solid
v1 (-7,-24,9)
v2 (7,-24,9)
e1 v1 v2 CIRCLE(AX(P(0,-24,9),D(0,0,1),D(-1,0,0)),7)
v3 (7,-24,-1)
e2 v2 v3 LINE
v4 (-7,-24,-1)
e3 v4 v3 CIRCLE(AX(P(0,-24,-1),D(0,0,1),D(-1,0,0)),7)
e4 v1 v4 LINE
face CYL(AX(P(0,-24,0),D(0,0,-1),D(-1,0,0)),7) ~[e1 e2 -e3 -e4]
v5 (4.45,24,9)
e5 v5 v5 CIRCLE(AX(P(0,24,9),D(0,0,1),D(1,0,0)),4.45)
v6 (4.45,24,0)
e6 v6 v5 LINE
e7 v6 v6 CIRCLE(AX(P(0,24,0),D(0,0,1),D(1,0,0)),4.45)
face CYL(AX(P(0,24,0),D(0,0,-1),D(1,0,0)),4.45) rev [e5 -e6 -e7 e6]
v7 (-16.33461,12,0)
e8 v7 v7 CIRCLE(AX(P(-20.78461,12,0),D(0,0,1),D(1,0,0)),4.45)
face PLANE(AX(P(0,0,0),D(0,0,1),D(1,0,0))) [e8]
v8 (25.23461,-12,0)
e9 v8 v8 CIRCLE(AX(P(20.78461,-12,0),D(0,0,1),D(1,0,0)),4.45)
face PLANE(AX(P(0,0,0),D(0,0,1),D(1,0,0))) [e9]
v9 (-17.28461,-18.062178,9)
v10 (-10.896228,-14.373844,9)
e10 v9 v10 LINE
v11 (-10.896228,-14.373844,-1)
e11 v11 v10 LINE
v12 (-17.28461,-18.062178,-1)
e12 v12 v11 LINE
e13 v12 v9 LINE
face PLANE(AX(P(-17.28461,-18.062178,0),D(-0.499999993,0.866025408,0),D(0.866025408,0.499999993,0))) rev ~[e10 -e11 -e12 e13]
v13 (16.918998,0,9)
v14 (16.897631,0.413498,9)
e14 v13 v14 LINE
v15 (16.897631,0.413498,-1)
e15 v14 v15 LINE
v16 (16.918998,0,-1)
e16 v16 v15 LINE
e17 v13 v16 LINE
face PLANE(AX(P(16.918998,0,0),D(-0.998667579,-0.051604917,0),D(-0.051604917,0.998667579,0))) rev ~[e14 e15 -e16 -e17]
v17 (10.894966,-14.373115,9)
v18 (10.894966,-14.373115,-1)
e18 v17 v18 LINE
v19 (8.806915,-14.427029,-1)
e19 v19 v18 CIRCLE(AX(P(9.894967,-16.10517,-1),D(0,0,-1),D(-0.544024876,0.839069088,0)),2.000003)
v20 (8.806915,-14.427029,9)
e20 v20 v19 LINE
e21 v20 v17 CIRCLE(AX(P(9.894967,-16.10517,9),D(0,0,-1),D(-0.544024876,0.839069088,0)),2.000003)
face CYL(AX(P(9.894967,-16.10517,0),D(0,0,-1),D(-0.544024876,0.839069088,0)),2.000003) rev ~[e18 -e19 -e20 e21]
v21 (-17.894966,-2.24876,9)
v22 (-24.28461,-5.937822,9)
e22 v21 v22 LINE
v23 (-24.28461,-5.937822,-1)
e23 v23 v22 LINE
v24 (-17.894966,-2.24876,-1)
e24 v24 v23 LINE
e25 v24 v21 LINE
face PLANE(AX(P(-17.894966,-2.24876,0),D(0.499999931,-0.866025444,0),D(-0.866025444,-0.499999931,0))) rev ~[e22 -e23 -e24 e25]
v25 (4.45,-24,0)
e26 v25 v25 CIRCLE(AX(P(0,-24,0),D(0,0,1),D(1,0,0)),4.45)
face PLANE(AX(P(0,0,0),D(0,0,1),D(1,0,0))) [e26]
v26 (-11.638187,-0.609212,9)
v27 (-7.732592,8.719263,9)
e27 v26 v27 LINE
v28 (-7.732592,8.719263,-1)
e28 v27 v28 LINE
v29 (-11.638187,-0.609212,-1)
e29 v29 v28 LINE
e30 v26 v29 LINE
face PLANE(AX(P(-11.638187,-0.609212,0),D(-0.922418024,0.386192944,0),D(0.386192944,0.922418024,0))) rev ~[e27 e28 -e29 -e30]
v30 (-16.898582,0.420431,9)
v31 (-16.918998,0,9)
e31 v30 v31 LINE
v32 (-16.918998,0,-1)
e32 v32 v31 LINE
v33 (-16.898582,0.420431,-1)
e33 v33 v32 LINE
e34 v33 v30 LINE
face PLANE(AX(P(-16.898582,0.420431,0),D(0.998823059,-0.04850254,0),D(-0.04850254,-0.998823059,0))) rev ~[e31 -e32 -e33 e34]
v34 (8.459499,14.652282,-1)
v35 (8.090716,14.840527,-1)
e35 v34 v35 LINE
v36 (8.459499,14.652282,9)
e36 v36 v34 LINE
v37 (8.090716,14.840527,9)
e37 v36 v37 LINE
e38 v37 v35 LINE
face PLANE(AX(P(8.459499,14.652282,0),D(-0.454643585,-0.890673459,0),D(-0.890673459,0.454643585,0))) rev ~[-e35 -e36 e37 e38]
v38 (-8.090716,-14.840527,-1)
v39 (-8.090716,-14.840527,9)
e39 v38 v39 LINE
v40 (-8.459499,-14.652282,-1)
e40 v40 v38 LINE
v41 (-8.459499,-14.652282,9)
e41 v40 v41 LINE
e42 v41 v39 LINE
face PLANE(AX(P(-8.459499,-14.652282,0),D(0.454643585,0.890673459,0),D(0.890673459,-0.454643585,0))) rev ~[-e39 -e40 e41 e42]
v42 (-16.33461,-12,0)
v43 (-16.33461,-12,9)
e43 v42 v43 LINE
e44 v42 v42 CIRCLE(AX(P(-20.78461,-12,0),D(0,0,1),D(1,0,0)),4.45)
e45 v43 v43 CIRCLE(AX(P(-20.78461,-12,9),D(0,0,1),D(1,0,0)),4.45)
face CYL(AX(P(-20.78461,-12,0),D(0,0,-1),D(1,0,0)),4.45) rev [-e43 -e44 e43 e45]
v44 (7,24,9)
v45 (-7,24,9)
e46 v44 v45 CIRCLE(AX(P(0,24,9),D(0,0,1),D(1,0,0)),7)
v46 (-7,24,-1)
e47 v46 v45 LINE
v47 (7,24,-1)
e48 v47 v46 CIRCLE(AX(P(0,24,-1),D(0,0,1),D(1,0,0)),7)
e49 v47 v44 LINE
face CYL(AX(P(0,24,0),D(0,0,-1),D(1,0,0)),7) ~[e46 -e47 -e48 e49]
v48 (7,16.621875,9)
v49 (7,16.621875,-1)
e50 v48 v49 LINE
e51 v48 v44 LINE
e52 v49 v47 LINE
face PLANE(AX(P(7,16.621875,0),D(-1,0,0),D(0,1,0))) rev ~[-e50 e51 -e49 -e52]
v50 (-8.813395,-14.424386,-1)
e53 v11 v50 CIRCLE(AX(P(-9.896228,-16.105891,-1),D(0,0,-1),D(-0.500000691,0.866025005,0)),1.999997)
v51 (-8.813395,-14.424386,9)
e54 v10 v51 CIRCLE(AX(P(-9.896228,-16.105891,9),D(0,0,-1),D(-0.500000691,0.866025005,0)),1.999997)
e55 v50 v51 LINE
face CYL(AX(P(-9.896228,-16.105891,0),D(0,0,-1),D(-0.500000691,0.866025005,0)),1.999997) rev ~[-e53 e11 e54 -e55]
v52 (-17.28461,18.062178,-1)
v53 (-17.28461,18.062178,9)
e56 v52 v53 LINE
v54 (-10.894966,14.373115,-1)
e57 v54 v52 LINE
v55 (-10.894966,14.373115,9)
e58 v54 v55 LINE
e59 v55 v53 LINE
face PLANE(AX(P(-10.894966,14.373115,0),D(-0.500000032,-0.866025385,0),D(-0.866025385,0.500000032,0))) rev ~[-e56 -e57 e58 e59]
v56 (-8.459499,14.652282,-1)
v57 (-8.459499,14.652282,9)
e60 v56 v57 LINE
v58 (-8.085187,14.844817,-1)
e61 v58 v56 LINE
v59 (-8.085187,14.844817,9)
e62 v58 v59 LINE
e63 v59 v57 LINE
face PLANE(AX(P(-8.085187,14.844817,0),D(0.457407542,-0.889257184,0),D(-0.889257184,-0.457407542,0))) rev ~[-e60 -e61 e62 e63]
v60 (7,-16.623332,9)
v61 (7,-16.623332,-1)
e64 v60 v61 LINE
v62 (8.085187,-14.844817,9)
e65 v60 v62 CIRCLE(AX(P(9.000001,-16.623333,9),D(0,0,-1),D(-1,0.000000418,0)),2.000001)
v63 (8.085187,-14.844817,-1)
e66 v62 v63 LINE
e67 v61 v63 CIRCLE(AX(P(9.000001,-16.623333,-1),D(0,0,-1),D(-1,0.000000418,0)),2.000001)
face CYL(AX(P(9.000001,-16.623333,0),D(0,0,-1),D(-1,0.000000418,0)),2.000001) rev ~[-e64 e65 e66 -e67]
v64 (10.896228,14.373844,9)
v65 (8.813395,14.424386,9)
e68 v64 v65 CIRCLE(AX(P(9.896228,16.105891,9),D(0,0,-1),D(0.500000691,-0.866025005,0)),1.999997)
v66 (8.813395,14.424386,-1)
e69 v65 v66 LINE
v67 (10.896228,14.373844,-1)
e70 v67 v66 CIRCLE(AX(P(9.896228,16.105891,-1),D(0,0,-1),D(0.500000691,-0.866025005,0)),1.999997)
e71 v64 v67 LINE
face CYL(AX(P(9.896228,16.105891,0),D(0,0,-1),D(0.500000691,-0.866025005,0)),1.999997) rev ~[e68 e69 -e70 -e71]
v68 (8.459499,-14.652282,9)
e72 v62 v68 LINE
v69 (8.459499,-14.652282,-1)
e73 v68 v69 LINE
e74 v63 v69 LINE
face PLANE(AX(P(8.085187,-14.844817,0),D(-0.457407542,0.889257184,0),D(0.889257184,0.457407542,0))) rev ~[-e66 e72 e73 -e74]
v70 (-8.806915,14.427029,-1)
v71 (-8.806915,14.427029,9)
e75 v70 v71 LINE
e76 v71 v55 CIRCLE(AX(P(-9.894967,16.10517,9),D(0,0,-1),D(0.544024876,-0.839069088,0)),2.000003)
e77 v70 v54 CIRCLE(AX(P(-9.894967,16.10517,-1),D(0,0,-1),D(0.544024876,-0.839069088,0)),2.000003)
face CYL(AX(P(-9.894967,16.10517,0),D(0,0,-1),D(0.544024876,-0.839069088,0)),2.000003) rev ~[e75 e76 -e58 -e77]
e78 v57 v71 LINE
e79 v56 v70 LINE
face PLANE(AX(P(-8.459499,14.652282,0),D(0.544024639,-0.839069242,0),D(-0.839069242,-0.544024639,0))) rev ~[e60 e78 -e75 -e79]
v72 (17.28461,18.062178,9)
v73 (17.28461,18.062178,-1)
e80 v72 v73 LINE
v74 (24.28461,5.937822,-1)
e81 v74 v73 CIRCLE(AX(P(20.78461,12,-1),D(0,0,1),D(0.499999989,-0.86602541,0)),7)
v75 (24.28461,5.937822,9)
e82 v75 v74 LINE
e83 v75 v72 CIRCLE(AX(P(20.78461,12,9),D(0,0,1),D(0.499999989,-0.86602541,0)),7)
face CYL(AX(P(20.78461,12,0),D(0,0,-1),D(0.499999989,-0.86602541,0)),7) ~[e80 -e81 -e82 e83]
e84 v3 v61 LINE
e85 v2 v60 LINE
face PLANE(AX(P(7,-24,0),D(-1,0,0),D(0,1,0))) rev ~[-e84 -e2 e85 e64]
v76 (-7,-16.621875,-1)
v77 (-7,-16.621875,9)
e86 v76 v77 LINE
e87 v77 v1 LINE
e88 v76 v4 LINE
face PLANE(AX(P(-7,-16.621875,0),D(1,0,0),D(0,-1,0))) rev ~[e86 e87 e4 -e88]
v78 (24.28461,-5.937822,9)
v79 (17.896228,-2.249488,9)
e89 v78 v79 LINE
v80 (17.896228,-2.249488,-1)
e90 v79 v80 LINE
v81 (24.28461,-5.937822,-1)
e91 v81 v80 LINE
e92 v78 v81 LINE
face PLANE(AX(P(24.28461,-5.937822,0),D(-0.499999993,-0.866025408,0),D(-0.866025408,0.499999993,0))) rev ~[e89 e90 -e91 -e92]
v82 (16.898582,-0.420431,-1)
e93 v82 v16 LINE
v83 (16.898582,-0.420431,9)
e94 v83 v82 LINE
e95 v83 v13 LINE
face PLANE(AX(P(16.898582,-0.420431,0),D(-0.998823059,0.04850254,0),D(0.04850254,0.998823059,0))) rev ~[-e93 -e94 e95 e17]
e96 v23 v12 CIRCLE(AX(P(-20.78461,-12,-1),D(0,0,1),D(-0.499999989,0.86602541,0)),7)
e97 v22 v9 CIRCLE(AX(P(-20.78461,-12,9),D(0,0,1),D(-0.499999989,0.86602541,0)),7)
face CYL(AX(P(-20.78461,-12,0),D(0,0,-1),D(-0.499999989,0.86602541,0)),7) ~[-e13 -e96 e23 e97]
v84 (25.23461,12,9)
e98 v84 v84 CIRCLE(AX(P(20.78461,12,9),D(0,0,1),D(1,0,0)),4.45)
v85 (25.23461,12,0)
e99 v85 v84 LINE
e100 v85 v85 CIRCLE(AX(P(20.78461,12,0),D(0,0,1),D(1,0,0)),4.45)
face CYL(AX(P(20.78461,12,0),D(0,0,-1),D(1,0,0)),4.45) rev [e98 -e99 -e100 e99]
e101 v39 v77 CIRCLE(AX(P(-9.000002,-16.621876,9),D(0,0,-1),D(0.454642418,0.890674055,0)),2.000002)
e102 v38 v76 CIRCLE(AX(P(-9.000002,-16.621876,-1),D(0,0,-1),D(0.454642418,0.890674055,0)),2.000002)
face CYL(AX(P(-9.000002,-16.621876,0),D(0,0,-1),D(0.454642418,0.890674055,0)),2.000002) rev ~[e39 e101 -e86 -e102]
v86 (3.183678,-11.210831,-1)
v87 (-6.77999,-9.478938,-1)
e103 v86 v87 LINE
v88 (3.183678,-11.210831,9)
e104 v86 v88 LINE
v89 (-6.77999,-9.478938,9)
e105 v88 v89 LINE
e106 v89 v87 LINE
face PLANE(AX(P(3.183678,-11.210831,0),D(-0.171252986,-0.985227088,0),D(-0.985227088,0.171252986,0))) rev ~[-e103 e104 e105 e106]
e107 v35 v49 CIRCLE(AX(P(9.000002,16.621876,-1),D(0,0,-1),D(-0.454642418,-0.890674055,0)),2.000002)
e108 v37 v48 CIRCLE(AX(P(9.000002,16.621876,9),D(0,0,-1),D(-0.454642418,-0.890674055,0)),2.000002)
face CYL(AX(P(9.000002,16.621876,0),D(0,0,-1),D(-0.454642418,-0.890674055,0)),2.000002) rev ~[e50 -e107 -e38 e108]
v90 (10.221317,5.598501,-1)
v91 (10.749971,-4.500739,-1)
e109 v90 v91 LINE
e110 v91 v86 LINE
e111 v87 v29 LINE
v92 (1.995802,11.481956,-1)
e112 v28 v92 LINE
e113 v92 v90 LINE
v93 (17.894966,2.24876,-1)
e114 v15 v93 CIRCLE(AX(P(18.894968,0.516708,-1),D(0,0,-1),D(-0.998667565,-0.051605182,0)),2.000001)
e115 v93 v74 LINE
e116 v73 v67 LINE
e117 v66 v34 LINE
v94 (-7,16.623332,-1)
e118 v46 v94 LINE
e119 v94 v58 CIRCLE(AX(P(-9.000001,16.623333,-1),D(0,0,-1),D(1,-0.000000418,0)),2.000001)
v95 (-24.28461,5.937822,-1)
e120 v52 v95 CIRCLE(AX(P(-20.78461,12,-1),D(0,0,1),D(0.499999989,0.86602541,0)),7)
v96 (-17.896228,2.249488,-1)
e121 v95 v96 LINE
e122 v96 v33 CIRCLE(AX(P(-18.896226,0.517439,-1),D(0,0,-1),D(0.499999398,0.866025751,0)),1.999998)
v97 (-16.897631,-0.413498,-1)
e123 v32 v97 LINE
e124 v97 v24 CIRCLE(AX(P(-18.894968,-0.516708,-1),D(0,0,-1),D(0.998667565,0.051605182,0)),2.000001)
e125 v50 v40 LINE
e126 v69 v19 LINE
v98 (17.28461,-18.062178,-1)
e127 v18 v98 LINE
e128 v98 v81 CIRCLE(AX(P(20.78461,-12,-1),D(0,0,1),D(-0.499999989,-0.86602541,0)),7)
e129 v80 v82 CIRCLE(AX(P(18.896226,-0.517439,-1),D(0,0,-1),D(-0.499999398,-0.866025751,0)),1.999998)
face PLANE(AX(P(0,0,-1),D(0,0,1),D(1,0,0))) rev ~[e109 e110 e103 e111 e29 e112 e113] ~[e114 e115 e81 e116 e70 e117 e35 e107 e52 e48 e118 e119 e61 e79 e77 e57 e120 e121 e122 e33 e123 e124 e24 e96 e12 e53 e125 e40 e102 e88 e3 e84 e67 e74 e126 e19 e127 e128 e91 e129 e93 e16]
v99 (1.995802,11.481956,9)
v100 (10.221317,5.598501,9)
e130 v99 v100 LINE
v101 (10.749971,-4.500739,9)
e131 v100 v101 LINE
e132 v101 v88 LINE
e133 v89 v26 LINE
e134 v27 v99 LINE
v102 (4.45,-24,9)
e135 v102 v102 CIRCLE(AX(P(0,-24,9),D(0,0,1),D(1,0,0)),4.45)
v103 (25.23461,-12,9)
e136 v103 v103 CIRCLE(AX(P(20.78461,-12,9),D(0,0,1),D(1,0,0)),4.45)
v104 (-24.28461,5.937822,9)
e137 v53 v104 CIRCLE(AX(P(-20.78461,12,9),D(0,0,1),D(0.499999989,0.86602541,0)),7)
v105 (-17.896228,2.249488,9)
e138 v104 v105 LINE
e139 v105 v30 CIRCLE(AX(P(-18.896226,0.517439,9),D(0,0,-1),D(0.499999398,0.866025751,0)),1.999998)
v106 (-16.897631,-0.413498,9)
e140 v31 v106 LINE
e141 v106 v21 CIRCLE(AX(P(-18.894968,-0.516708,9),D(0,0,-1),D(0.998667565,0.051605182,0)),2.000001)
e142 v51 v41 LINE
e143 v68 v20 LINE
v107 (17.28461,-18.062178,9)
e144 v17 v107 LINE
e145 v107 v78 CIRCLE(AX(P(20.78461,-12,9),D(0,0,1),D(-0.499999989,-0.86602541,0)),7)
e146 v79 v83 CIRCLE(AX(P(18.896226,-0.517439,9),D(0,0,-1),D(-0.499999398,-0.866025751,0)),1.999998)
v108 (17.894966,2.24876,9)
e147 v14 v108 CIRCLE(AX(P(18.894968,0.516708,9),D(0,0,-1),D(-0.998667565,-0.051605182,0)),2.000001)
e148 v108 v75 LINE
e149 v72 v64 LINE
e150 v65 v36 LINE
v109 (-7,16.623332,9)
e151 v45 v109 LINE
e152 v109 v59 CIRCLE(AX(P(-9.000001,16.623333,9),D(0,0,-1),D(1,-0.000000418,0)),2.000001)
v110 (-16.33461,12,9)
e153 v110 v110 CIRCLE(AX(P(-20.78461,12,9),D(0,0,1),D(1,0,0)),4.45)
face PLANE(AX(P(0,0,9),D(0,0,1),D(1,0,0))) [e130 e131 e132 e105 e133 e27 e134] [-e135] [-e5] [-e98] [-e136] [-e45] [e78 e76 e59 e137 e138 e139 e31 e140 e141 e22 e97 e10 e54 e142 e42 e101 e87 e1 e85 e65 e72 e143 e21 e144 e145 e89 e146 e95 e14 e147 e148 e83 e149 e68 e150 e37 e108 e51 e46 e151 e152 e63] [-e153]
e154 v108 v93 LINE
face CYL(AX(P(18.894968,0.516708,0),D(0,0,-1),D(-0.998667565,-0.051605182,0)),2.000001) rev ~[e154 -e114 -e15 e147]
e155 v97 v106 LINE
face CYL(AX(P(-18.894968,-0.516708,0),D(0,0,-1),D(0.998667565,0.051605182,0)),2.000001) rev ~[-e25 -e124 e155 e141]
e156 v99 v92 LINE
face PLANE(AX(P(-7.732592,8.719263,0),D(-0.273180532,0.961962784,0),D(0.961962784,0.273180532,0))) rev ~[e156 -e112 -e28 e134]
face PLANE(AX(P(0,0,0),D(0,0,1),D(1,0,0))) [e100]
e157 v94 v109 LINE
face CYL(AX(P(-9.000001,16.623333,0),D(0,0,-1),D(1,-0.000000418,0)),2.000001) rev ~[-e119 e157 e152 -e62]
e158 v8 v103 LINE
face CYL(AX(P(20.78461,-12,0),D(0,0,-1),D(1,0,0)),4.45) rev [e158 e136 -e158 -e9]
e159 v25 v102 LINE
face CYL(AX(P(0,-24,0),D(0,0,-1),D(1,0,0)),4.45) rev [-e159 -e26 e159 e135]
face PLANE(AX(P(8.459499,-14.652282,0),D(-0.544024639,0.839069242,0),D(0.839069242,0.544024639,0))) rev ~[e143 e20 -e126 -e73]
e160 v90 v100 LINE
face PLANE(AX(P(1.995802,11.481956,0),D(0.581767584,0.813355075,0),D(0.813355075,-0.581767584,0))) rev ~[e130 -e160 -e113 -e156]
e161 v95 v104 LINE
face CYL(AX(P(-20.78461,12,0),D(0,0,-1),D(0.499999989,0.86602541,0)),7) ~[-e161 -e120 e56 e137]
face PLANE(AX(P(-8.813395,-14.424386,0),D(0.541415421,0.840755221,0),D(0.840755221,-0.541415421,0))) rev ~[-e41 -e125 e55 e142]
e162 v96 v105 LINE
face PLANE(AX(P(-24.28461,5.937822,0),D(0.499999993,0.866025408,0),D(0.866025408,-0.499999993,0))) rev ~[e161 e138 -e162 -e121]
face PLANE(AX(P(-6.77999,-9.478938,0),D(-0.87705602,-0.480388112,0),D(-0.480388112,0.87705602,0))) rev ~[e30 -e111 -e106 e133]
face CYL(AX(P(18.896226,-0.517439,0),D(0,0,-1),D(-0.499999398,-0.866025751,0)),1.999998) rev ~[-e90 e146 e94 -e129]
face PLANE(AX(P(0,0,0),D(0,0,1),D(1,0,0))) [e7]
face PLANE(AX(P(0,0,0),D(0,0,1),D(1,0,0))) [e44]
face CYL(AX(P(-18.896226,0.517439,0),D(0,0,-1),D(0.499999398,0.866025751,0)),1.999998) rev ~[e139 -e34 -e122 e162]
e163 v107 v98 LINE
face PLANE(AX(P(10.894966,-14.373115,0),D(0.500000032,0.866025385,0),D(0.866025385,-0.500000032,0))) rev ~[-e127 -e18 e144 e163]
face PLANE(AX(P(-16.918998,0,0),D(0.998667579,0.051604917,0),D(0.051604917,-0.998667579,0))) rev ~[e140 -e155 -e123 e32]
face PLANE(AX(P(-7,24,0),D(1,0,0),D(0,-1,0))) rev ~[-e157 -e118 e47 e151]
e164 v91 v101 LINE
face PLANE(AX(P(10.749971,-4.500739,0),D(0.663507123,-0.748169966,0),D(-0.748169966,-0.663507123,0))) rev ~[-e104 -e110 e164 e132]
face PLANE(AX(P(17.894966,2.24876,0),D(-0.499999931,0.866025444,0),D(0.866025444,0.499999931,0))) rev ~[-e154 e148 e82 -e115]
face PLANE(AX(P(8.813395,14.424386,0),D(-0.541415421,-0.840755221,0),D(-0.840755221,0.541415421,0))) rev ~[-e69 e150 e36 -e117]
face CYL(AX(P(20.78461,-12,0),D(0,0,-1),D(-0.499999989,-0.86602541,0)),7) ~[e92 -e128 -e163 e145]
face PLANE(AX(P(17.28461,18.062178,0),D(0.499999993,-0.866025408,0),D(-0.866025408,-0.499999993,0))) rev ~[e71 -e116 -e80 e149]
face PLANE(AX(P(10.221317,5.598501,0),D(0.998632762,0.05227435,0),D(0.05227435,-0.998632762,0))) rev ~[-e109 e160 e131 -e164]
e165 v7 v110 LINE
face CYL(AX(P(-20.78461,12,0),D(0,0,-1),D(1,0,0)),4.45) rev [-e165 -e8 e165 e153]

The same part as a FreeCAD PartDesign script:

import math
import FreeCAD as App
import Part
import Sketcher
from FreeCAD import Vector
Q = App.Units.Quantity

doc = App.newDocument("Part")
body = doc.addObject("PartDesign::Body", "Body")

sketch1 = body.newObject("Sketcher::SketchObject", "Sketch")
sketch1.AttachmentSupport = (doc.getObject("XY_Plane"), [""])
sketch1.MapMode = "FlatFace"
sketch1.addGeometry([
    Part.LineSegment(Vector(7, 16.62, 0), Vector(7, 24, 0)),
    Part.ArcOfCircle(Part.Circle(Vector(0, 24, 0), Vector(0, 0, 1), 7), math.radians(0), math.radians(180)),
    Part.LineSegment(Vector(-7, 24, 0), Vector(-7, 16.62, 0)),
    Part.ArcOfCircle(Part.Circle(Vector(-9, 16.62, 0), Vector(0, 0, 1), 2), math.radians(-63), math.radians(0)),
    Part.LineSegment(Vector(-8.09, 14.84, 0), Vector(-8.46, 14.65, 0)),
    Part.LineSegment(Vector(-8.46, 14.65, 0), Vector(-8.81, 14.43, 0)),
    Part.ArcOfCircle(Part.Circle(Vector(-9.89, 16.11, 0), Vector(0, 0, 1), 2), math.radians(-120), math.radians(-57)),
    Part.LineSegment(Vector(-10.89, 14.37, 0), Vector(-17.28, 18.06, 0)),
    Part.ArcOfCircle(Part.Circle(Vector(-20.78, 12, 0), Vector(0, 0, 1), 7), math.radians(60), math.radians(240)),
    Part.LineSegment(Vector(-24.28, 5.94, 0), Vector(-17.9, 2.25, 0)),
    Part.ArcOfCircle(Part.Circle(Vector(-18.9, 0.52, 0), Vector(0, 0, 1), 2), math.radians(-3), math.radians(60)),
    Part.LineSegment(Vector(-16.9, 0.42, 0), Vector(-16.92, 0, 0)),
    Part.LineSegment(Vector(-16.92, 0, 0), Vector(-16.9, -0.41, 0)),
    Part.ArcOfCircle(Part.Circle(Vector(-18.89, -0.52, 0), Vector(0, 0, 1), 2), math.radians(-60), math.radians(3)),
    Part.LineSegment(Vector(-17.89, -2.25, 0), Vector(-24.28, -5.94, 0)),
    Part.ArcOfCircle(Part.Circle(Vector(-20.78, -12, 0), Vector(0, 0, 1), 7), math.radians(120), math.radians(300)),
    Part.LineSegment(Vector(-17.28, -18.06, 0), Vector(-10.9, -14.37, 0)),
    Part.ArcOfCircle(Part.Circle(Vector(-9.9, -16.11, 0), Vector(0, 0, 1), 2), math.radians(57), math.radians(120)),
    Part.LineSegment(Vector(-8.81, -14.42, 0), Vector(-8.46, -14.65, 0)),
    Part.LineSegment(Vector(-8.46, -14.65, 0), Vector(-8.09, -14.84, 0)),
    Part.ArcOfCircle(Part.Circle(Vector(-9, -16.62, 0), Vector(0, 0, 1), 2), math.radians(0), math.radians(63)),
    Part.LineSegment(Vector(-7, -16.62, 0), Vector(-7, -24, 0)),
    Part.ArcOfCircle(Part.Circle(Vector(0, -24, 0), Vector(0, 0, 1), 7), math.radians(180), math.radians(360)),
    Part.LineSegment(Vector(7, -24, 0), Vector(7, -16.62, 0)),
    Part.ArcOfCircle(Part.Circle(Vector(9, -16.62, 0), Vector(0, 0, 1), 2), math.radians(117), math.radians(180)),
    Part.LineSegment(Vector(8.09, -14.84, 0), Vector(8.46, -14.65, 0)),
    Part.LineSegment(Vector(8.46, -14.65, 0), Vector(8.81, -14.43, 0)),
    Part.ArcOfCircle(Part.Circle(Vector(9.89, -16.11, 0), Vector(0, 0, 1), 2), math.radians(60), math.radians(123)),
    Part.LineSegment(Vector(10.89, -14.37, 0), Vector(17.28, -18.06, 0)),
    Part.ArcOfCircle(Part.Circle(Vector(20.78, -12, 0), Vector(0, 0, 1), 7), math.radians(-120), math.radians(60)),
    Part.LineSegment(Vector(24.28, -5.94, 0), Vector(17.9, -2.25, 0)),
    Part.ArcOfCircle(Part.Circle(Vector(18.9, -0.52, 0), Vector(0, 0, 1), 2), math.radians(177), math.radians(240)),
    Part.LineSegment(Vector(16.9, -0.42, 0), Vector(16.92, 0, 0)),
    Part.LineSegment(Vector(16.92, 0, 0), Vector(16.9, 0.41, 0)),
    Part.ArcOfCircle(Part.Circle(Vector(18.89, 0.52, 0), Vector(0, 0, 1), 2), math.radians(120), math.radians(183)),
    Part.LineSegment(Vector(17.89, 2.25, 0), Vector(24.28, 5.94, 0)),
    Part.ArcOfCircle(Part.Circle(Vector(20.78, 12, 0), Vector(0, 0, 1), 7), math.radians(-60), math.radians(120)),
    Part.LineSegment(Vector(17.28, 18.06, 0), Vector(10.9, 14.37, 0)),
    Part.ArcOfCircle(Part.Circle(Vector(9.9, 16.11, 0), Vector(0, 0, 1), 2), math.radians(-123), math.radians(-60)),
    Part.LineSegment(Vector(8.81, 14.42, 0), Vector(8.46, 14.65, 0)),
    Part.LineSegment(Vector(8.46, 14.65, 0), Vector(8.09, 14.84, 0)),
    Part.ArcOfCircle(Part.Circle(Vector(9, 16.62, 0), Vector(0, 0, 1), 2), math.radians(-180), math.radians(-117)),
    Part.LineSegment(Vector(2, 11.48, 0), Vector(10.22, 5.6, 0)),
    Part.LineSegment(Vector(10.22, 5.6, 0), Vector(10.75, -4.5, 0)),
    Part.LineSegment(Vector(10.75, -4.5, 0), Vector(3.18, -11.21, 0)),
    Part.LineSegment(Vector(3.18, -11.21, 0), Vector(-6.78, -9.48, 0)),
    Part.LineSegment(Vector(-6.78, -9.48, 0), Vector(-11.64, -0.61, 0)),
    Part.LineSegment(Vector(-11.64, -0.61, 0), Vector(-7.73, 8.72, 0)),
    Part.LineSegment(Vector(-7.73, 8.72, 0), Vector(2, 11.48, 0)),
], False)
sketch1.addConstraint([
    Sketcher.Constraint("Tangent", 0, 2, 1, 1),
    Sketcher.Constraint("Tangent", 1, 2, 2, 1),
    Sketcher.Constraint("Tangent", 2, 2, 3, 2),
    Sketcher.Constraint("Tangent", 3, 1, 4, 1),
    Sketcher.Constraint("Coincident", 4, 2, 5, 1),
    Sketcher.Constraint("Tangent", 5, 2, 6, 2),
    Sketcher.Constraint("Tangent", 6, 1, 7, 1),
    Sketcher.Constraint("Tangent", 7, 2, 8, 1),
    Sketcher.Constraint("Tangent", 8, 2, 9, 1),
    Sketcher.Constraint("Tangent", 9, 2, 10, 2),
    Sketcher.Constraint("Tangent", 10, 1, 11, 1),
    Sketcher.Constraint("Coincident", 11, 2, 12, 1),
    Sketcher.Constraint("Tangent", 12, 2, 13, 2),
    Sketcher.Constraint("Tangent", 13, 1, 14, 1),
    Sketcher.Constraint("Tangent", 14, 2, 15, 1),
    Sketcher.Constraint("Tangent", 15, 2, 16, 1),
    Sketcher.Constraint("Tangent", 16, 2, 17, 2),
    Sketcher.Constraint("Coincident", 17, 1, 18, 1),
    Sketcher.Constraint("Coincident", 18, 2, 19, 1),
    Sketcher.Constraint("Tangent", 19, 2, 20, 2),
    Sketcher.Constraint("Tangent", 20, 1, 21, 1),
    Sketcher.Constraint("Tangent", 21, 2, 22, 1),
    Sketcher.Constraint("Tangent", 22, 2, 23, 1),
    Sketcher.Constraint("Tangent", 23, 2, 24, 2),
    Sketcher.Constraint("Tangent", 24, 1, 25, 1),
    Sketcher.Constraint("Coincident", 25, 2, 26, 1),
    Sketcher.Constraint("Tangent", 26, 2, 27, 2),
    Sketcher.Constraint("Tangent", 27, 1, 28, 1),
    Sketcher.Constraint("Tangent", 28, 2, 29, 1),
    Sketcher.Constraint("Tangent", 29, 2, 30, 1),
    Sketcher.Constraint("Tangent", 30, 2, 31, 2),
    Sketcher.Constraint("Tangent", 31, 1, 32, 1),
    Sketcher.Constraint("Coincident", 32, 2, 33, 1),
    Sketcher.Constraint("Tangent", 33, 2, 34, 2),
    Sketcher.Constraint("Tangent", 34, 1, 35, 1),
    Sketcher.Constraint("Tangent", 35, 2, 36, 1),
    Sketcher.Constraint("Tangent", 36, 2, 37, 1),
    Sketcher.Constraint("Tangent", 37, 2, 38, 2),
    Sketcher.Constraint("Coincident", 38, 1, 39, 1),
    Sketcher.Constraint("Coincident", 39, 2, 40, 1),
    Sketcher.Constraint("Tangent", 40, 2, 41, 2),
    Sketcher.Constraint("Tangent", 41, 1, 0, 1),
    Sketcher.Constraint("Coincident", 42, 2, 43, 1),
    Sketcher.Constraint("Coincident", 43, 2, 44, 1),
    Sketcher.Constraint("Coincident", 44, 2, 45, 1),
    Sketcher.Constraint("Coincident", 45, 2, 46, 1),
    Sketcher.Constraint("Coincident", 46, 2, 47, 1),
    Sketcher.Constraint("Coincident", 47, 2, 48, 1),
    Sketcher.Constraint("Coincident", 48, 2, 42, 1),
    Sketcher.Constraint("Vertical", 0),
    Sketcher.Constraint("Vertical", 2),
    Sketcher.Constraint("Vertical", 21),
    Sketcher.Constraint("Vertical", 23),
    Sketcher.Constraint("Equal", 1, 8),
    Sketcher.Constraint("Equal", 6, 13),
    Sketcher.Constraint("Equal", 8, 15),
    Sketcher.Constraint("Equal", 10, 17),
    Sketcher.Constraint("Equal", 13, 20),
    Sketcher.Constraint("Equal", 15, 22),
    Sketcher.Constraint("Equal", 20, 24),
    Sketcher.Constraint("Equal", 20, 27),
    Sketcher.Constraint("Equal", 22, 29),
    Sketcher.Constraint("Equal", 17, 31),
    Sketcher.Constraint("Equal", 27, 34),
    Sketcher.Constraint("Equal", 29, 36),
    Sketcher.Constraint("Equal", 31, 38),
    Sketcher.Constraint("Equal", 34, 41),
    Sketcher.Constraint("Symmetric", 1, 3, 22, 3, -1, 1),
    Sketcher.Constraint("Symmetric", 3, 3, 24, 3, -1, 1),
    Sketcher.Constraint("Symmetric", 6, 3, 27, 3, -1, 1),
    Sketcher.Constraint("Symmetric", 8, 3, 29, 3, -1, 1),
    Sketcher.Constraint("Symmetric", 10, 3, 31, 3, -1, 1),
    Sketcher.Constraint("Symmetric", 13, 3, 34, 3, -1, 1),
    Sketcher.Constraint("Symmetric", 15, 3, 36, 3, -1, 1),
    Sketcher.Constraint("Symmetric", 17, 3, 38, 3, -1, 1),
    Sketcher.Constraint("Symmetric", 4, 2, 25, 2, -1, 1),
    Sketcher.Constraint("Symmetric", 11, 2, 32, 2, -1, 1),
    Sketcher.Constraint("Symmetric", 18, 2, 39, 2, -1, 1),
    Sketcher.Constraint("Symmetric", 15, 3, 29, 3, -2),
    Sketcher.Constraint("Symmetric", 18, 2, 25, 2, -2),
    Sketcher.Constraint("PointOnObject", 1, 3, -2),
    Sketcher.Constraint("PointOnObject", 11, 2, -1),
    Sketcher.Constraint("Parallel", 7, 9),
    Sketcher.Constraint("Parallel", 14, 16),
    Sketcher.Constraint("Parallel", 19, 40),
    Sketcher.Constraint("Horizontal", 15, 2, 28, 2),
    Sketcher.Constraint("Equal", 4, 11),
    Sketcher.Constraint("Equal", 5, 12),
    Sketcher.Constraint("Equal", 7, 14),
    Sketcher.Constraint("Equal", 9, 16),
    Sketcher.Constraint("Equal", 11, 18),
    Sketcher.Constraint("Equal", 12, 19),
    Sketcher.Constraint("Equal", 32, 39),
    Sketcher.Constraint("Equal", 42, 43),
    Sketcher.Constraint("Equal", 43, 44),
    Sketcher.Constraint("Equal", 44, 45),
    Sketcher.Constraint("Equal", 45, 46),
    Sketcher.Constraint("Equal", 46, 47),
    Sketcher.Constraint("Equal", 47, 48),
    Sketcher.Constraint("Radius", 1, 7.0),
    Sketcher.Constraint("Radius", 3, 2.000001),
    Sketcher.Constraint("Angle", 7, Q("149.999998 deg")),
    Sketcher.Constraint("DistanceY", -1, 1, 1, 3, 24.0),
    Sketcher.Constraint("DistanceY", -1, 1, 8, 3, 12.0),
    Sketcher.Constraint("Radius", 10, 1.999998),
    Sketcher.Constraint("DistanceX", 4, 2, -1, 1, 8.459499),
    Sketcher.Constraint("DistanceY", -1, 1, 42, 2, 5.598501),
    Sketcher.Constraint("Distance", 5, 0.414049),
    Sketcher.Constraint("Distance", 9, 7.376668),
    Sketcher.Constraint("DistanceY", 0, 1, 0, 2, 7.378125),
    Sketcher.Constraint("DistanceY", 2, 2, 2, 1, 7.376668),
    Sketcher.Constraint("DistanceX", -1, 1, 43, 2, 10.749971),
    Sketcher.Constraint("DistanceY", 43, 2, -1, 1, 4.500739),
    Sketcher.Constraint("DistanceX", -1, 1, 44, 2, 3.183678),
    Sketcher.Constraint("DistanceY", 44, 2, -1, 1, 11.210831),
    Sketcher.Constraint("DistanceX", 45, 2, -1, 1, 6.77999),
    Sketcher.Constraint("DistanceY", 46, 2, -1, 1, 0.609212),
    Sketcher.Constraint("DistanceX", 47, 2, -1, 1, 7.732592),
])
pad1 = body.newObject("PartDesign::Pad", "Pad")
pad1.Profile = sketch1
pad1.Length = 1
pad1.Reversed = True

sketch2 = body.newObject("Sketcher::SketchObject", "Sketch001")
sketch2.AttachmentSupport = (doc.getObject("XY_Plane"), [""])
sketch2.MapMode = "FlatFace"
sketch2.addGeometry([
    Part.LineSegment(Vector(7, 16.62, 0), Vector(7, 24, 0)),
    Part.ArcOfCircle(Part.Circle(Vector(0, 24, 0), Vector(0, 0, 1), 7), math.radians(0), math.radians(180)),
    Part.LineSegment(Vector(-7, 24, 0), Vector(-7, 16.62, 0)),
    Part.ArcOfCircle(Part.Circle(Vector(-9, 16.62, 0), Vector(0, 0, 1), 2), math.radians(-63), math.radians(0)),
    Part.LineSegment(Vector(-8.09, 14.84, 0), Vector(-8.46, 14.65, 0)),
    Part.LineSegment(Vector(-8.46, 14.65, 0), Vector(-8.81, 14.43, 0)),
    Part.ArcOfCircle(Part.Circle(Vector(-9.89, 16.11, 0), Vector(0, 0, 1), 2), math.radians(-120), math.radians(-57)),
    Part.LineSegment(Vector(-10.89, 14.37, 0), Vector(-17.28, 18.06, 0)),
    Part.ArcOfCircle(Part.Circle(Vector(-20.78, 12, 0), Vector(0, 0, 1), 7), math.radians(60), math.radians(240)),
    Part.LineSegment(Vector(-24.28, 5.94, 0), Vector(-17.9, 2.25, 0)),
    Part.ArcOfCircle(Part.Circle(Vector(-18.9, 0.52, 0), Vector(0, 0, 1), 2), math.radians(-3), math.radians(60)),
    Part.LineSegment(Vector(-16.9, 0.42, 0), Vector(-16.92, 0, 0)),
    Part.LineSegment(Vector(-16.92, 0, 0), Vector(-16.9, -0.41, 0)),
    Part.ArcOfCircle(Part.Circle(Vector(-18.89, -0.52, 0), Vector(0, 0, 1), 2), math.radians(-60), math.radians(3)),
    Part.LineSegment(Vector(-17.89, -2.25, 0), Vector(-24.28, -5.94, 0)),
    Part.ArcOfCircle(Part.Circle(Vector(-20.78, -12, 0), Vector(0, 0, 1), 7), math.radians(120), math.radians(300)),
    Part.LineSegment(Vector(-17.28, -18.06, 0), Vector(-10.9, -14.37, 0)),
    Part.ArcOfCircle(Part.Circle(Vector(-9.9, -16.11, 0), Vector(0, 0, 1), 2), math.radians(57), math.radians(120)),
    Part.LineSegment(Vector(-8.81, -14.42, 0), Vector(-8.46, -14.65, 0)),
    Part.LineSegment(Vector(-8.46, -14.65, 0), Vector(-8.09, -14.84, 0)),
    Part.ArcOfCircle(Part.Circle(Vector(-9, -16.62, 0), Vector(0, 0, 1), 2), math.radians(0), math.radians(63)),
    Part.LineSegment(Vector(-7, -16.62, 0), Vector(-7, -24, 0)),
    Part.ArcOfCircle(Part.Circle(Vector(0, -24, 0), Vector(0, 0, 1), 7), math.radians(180), math.radians(360)),
    Part.LineSegment(Vector(7, -24, 0), Vector(7, -16.62, 0)),
    Part.ArcOfCircle(Part.Circle(Vector(9, -16.62, 0), Vector(0, 0, 1), 2), math.radians(117), math.radians(180)),
    Part.LineSegment(Vector(8.09, -14.84, 0), Vector(8.46, -14.65, 0)),
    Part.LineSegment(Vector(8.46, -14.65, 0), Vector(8.81, -14.43, 0)),
    Part.ArcOfCircle(Part.Circle(Vector(9.89, -16.11, 0), Vector(0, 0, 1), 2), math.radians(60), math.radians(123)),
    Part.LineSegment(Vector(10.89, -14.37, 0), Vector(17.28, -18.06, 0)),
    Part.ArcOfCircle(Part.Circle(Vector(20.78, -12, 0), Vector(0, 0, 1), 7), math.radians(-120), math.radians(60)),
    Part.LineSegment(Vector(24.28, -5.94, 0), Vector(17.9, -2.25, 0)),
    Part.ArcOfCircle(Part.Circle(Vector(18.9, -0.52, 0), Vector(0, 0, 1), 2), math.radians(177), math.radians(240)),
    Part.LineSegment(Vector(16.9, -0.42, 0), Vector(16.92, 0, 0)),
    Part.LineSegment(Vector(16.92, 0, 0), Vector(16.9, 0.41, 0)),
    Part.ArcOfCircle(Part.Circle(Vector(18.89, 0.52, 0), Vector(0, 0, 1), 2), math.radians(120), math.radians(183)),
    Part.LineSegment(Vector(17.89, 2.25, 0), Vector(24.28, 5.94, 0)),
    Part.ArcOfCircle(Part.Circle(Vector(20.78, 12, 0), Vector(0, 0, 1), 7), math.radians(-60), math.radians(120)),
    Part.LineSegment(Vector(17.28, 18.06, 0), Vector(10.9, 14.37, 0)),
    Part.ArcOfCircle(Part.Circle(Vector(9.9, 16.11, 0), Vector(0, 0, 1), 2), math.radians(-123), math.radians(-60)),
    Part.LineSegment(Vector(8.81, 14.42, 0), Vector(8.46, 14.65, 0)),
    Part.LineSegment(Vector(8.46, 14.65, 0), Vector(8.09, 14.84, 0)),
    Part.ArcOfCircle(Part.Circle(Vector(9, 16.62, 0), Vector(0, 0, 1), 2), math.radians(-180), math.radians(-117)),
    Part.Circle(Vector(-20.78, -12, 0), Vector(0, 0, 1), 4.45),
    Part.Circle(Vector(0, -24, 0), Vector(0, 0, 1), 4.45),
    Part.Circle(Vector(20.78, -12, 0), Vector(0, 0, 1), 4.45),
    Part.Circle(Vector(-20.78, 12, 0), Vector(0, 0, 1), 4.45),
    Part.LineSegment(Vector(2, 11.48, 0), Vector(10.22, 5.6, 0)),
    Part.LineSegment(Vector(10.22, 5.6, 0), Vector(10.75, -4.5, 0)),
    Part.LineSegment(Vector(10.75, -4.5, 0), Vector(3.18, -11.21, 0)),
    Part.LineSegment(Vector(3.18, -11.21, 0), Vector(-6.78, -9.48, 0)),
    Part.LineSegment(Vector(-6.78, -9.48, 0), Vector(-11.64, -0.61, 0)),
    Part.LineSegment(Vector(-11.64, -0.61, 0), Vector(-7.73, 8.72, 0)),
    Part.LineSegment(Vector(-7.73, 8.72, 0), Vector(2, 11.48, 0)),
    Part.Circle(Vector(20.78, 12, 0), Vector(0, 0, 1), 4.45),
    Part.Circle(Vector(0, 24, 0), Vector(0, 0, 1), 4.45),
], False)
sketch2.addConstraint([
    Sketcher.Constraint("Tangent", 0, 2, 1, 1),
    Sketcher.Constraint("Tangent", 1, 2, 2, 1),
    Sketcher.Constraint("Tangent", 2, 2, 3, 2),
    Sketcher.Constraint("Tangent", 3, 1, 4, 1),
    Sketcher.Constraint("Coincident", 4, 2, 5, 1),
    Sketcher.Constraint("Tangent", 5, 2, 6, 2),
    Sketcher.Constraint("Tangent", 6, 1, 7, 1),
    Sketcher.Constraint("Tangent", 7, 2, 8, 1),
    Sketcher.Constraint("Tangent", 8, 2, 9, 1),
    Sketcher.Constraint("Tangent", 9, 2, 10, 2),
    Sketcher.Constraint("Tangent", 10, 1, 11, 1),
    Sketcher.Constraint("Coincident", 11, 2, 12, 1),
    Sketcher.Constraint("Tangent", 12, 2, 13, 2),
    Sketcher.Constraint("Tangent", 13, 1, 14, 1),
    Sketcher.Constraint("Tangent", 14, 2, 15, 1),
    Sketcher.Constraint("Tangent", 15, 2, 16, 1),
    Sketcher.Constraint("Tangent", 16, 2, 17, 2),
    Sketcher.Constraint("Coincident", 17, 1, 18, 1),
    Sketcher.Constraint("Coincident", 18, 2, 19, 1),
    Sketcher.Constraint("Tangent", 19, 2, 20, 2),
    Sketcher.Constraint("Tangent", 20, 1, 21, 1),
    Sketcher.Constraint("Tangent", 21, 2, 22, 1),
    Sketcher.Constraint("Tangent", 22, 2, 23, 1),
    Sketcher.Constraint("Tangent", 23, 2, 24, 2),
    Sketcher.Constraint("Tangent", 24, 1, 25, 1),
    Sketcher.Constraint("Coincident", 25, 2, 26, 1),
    Sketcher.Constraint("Tangent", 26, 2, 27, 2),
    Sketcher.Constraint("Tangent", 27, 1, 28, 1),
    Sketcher.Constraint("Tangent", 28, 2, 29, 1),
    Sketcher.Constraint("Tangent", 29, 2, 30, 1),
    Sketcher.Constraint("Tangent", 30, 2, 31, 2),
    Sketcher.Constraint("Tangent", 31, 1, 32, 1),
    Sketcher.Constraint("Coincident", 32, 2, 33, 1),
    Sketcher.Constraint("Tangent", 33, 2, 34, 2),
    Sketcher.Constraint("Tangent", 34, 1, 35, 1),
    Sketcher.Constraint("Tangent", 35, 2, 36, 1),
    Sketcher.Constraint("Tangent", 36, 2, 37, 1),
    Sketcher.Constraint("Tangent", 37, 2, 38, 2),
    Sketcher.Constraint("Coincident", 38, 1, 39, 1),
    Sketcher.Constraint("Coincident", 39, 2, 40, 1),
    Sketcher.Constraint("Tangent", 40, 2, 41, 2),
    Sketcher.Constraint("Tangent", 41, 1, 0, 1),
    Sketcher.Constraint("Coincident", 46, 2, 47, 1),
    Sketcher.Constraint("Coincident", 47, 2, 48, 1),
    Sketcher.Constraint("Coincident", 48, 2, 49, 1),
    Sketcher.Constraint("Coincident", 49, 2, 50, 1),
    Sketcher.Constraint("Coincident", 50, 2, 51, 1),
    Sketcher.Constraint("Coincident", 51, 2, 52, 1),
    Sketcher.Constraint("Coincident", 52, 2, 46, 1),
    Sketcher.Constraint("Vertical", 0),
    Sketcher.Constraint("Vertical", 2),
    Sketcher.Constraint("Vertical", 21),
    Sketcher.Constraint("Vertical", 23),
    Sketcher.Constraint("Coincident", 42, 3, 15, 3),
    Sketcher.Constraint("Coincident", 43, 3, 22, 3),
    Sketcher.Constraint("Coincident", 44, 3, 29, 3),
    Sketcher.Constraint("Coincident", 45, 3, 8, 3),
    Sketcher.Constraint("Coincident", 53, 3, 36, 3),
    Sketcher.Constraint("Coincident", 54, 3, 1, 3),
    Sketcher.Constraint("Equal", 1, 8),
    Sketcher.Constraint("Equal", 6, 13),
    Sketcher.Constraint("Equal", 8, 15),
    Sketcher.Constraint("Equal", 10, 17),
    Sketcher.Constraint("Equal", 13, 20),
    Sketcher.Constraint("Equal", 15, 22),
    Sketcher.Constraint("Equal", 20, 24),
    Sketcher.Constraint("Equal", 20, 27),
    Sketcher.Constraint("Equal", 22, 29),
    Sketcher.Constraint("Equal", 17, 31),
    Sketcher.Constraint("Equal", 27, 34),
    Sketcher.Constraint("Equal", 29, 36),
    Sketcher.Constraint("Equal", 31, 38),
    Sketcher.Constraint("Equal", 34, 41),
    Sketcher.Constraint("Equal", 42, 43),
    Sketcher.Constraint("Equal", 43, 44),
    Sketcher.Constraint("Equal", 44, 45),
    Sketcher.Constraint("Equal", 45, 53),
    Sketcher.Constraint("Equal", 53, 54),
    Sketcher.Constraint("Symmetric", 1, 3, 22, 3, -1, 1),
    Sketcher.Constraint("Symmetric", 3, 3, 24, 3, -1, 1),
    Sketcher.Constraint("Symmetric", 6, 3, 27, 3, -1, 1),
    Sketcher.Constraint("Symmetric", 8, 3, 29, 3, -1, 1),
    Sketcher.Constraint("Symmetric", 10, 3, 31, 3, -1, 1),
    Sketcher.Constraint("Symmetric", 13, 3, 34, 3, -1, 1),
    Sketcher.Constraint("Symmetric", 15, 3, 36, 3, -1, 1),
    Sketcher.Constraint("Symmetric", 17, 3, 38, 3, -1, 1),
    Sketcher.Constraint("Symmetric", 4, 2, 25, 2, -1, 1),
    Sketcher.Constraint("Symmetric", 11, 2, 32, 2, -1, 1),
    Sketcher.Constraint("Symmetric", 18, 2, 39, 2, -1, 1),
    Sketcher.Constraint("Symmetric", 15, 3, 29, 3, -2),
    Sketcher.Constraint("Symmetric", 18, 2, 25, 2, -2),
    Sketcher.Constraint("PointOnObject", 1, 3, -2),
    Sketcher.Constraint("PointOnObject", 11, 2, -1),
    Sketcher.Constraint("Parallel", 7, 9),
    Sketcher.Constraint("Parallel", 14, 16),
    Sketcher.Constraint("Parallel", 19, 40),
    Sketcher.Constraint("Horizontal", 15, 2, 28, 2),
    Sketcher.Constraint("Equal", 4, 11),
    Sketcher.Constraint("Equal", 5, 12),
    Sketcher.Constraint("Equal", 7, 14),
    Sketcher.Constraint("Equal", 9, 16),
    Sketcher.Constraint("Equal", 11, 18),
    Sketcher.Constraint("Equal", 12, 19),
    Sketcher.Constraint("Equal", 32, 39),
    Sketcher.Constraint("Equal", 46, 47),
    Sketcher.Constraint("Equal", 47, 48),
    Sketcher.Constraint("Equal", 48, 49),
    Sketcher.Constraint("Equal", 49, 50),
    Sketcher.Constraint("Equal", 50, 51),
    Sketcher.Constraint("Equal", 51, 52),
    Sketcher.Constraint("Radius", 1, 7.0),
    Sketcher.Constraint("Radius", 3, 2.000001),
    Sketcher.Constraint("Diameter", 42, 8.9),
    Sketcher.Constraint("Angle", 7, Q("149.999998 deg")),
    Sketcher.Constraint("DistanceY", -1, 1, 1, 3, 24.0),
    Sketcher.Constraint("DistanceY", -1, 1, 8, 3, 12.0),
    Sketcher.Constraint("Radius", 10, 1.999998),
    Sketcher.Constraint("DistanceX", 4, 2, -1, 1, 8.459499),
    Sketcher.Constraint("DistanceY", -1, 1, 46, 2, 5.598501),
    Sketcher.Constraint("Distance", 5, 0.414049),
    Sketcher.Constraint("Distance", 9, 7.376668),
    Sketcher.Constraint("DistanceY", 0, 1, 0, 2, 7.378125),
    Sketcher.Constraint("DistanceY", 2, 2, 2, 1, 7.376668),
    Sketcher.Constraint("DistanceX", -1, 1, 47, 2, 10.749971),
    Sketcher.Constraint("DistanceY", 47, 2, -1, 1, 4.500739),
    Sketcher.Constraint("DistanceX", -1, 1, 48, 2, 3.183678),
    Sketcher.Constraint("DistanceY", 48, 2, -1, 1, 11.210831),
    Sketcher.Constraint("DistanceX", 49, 2, -1, 1, 6.77999),
    Sketcher.Constraint("DistanceY", 50, 2, -1, 1, 0.609212),
    Sketcher.Constraint("DistanceX", 51, 2, -1, 1, 7.732592),
])
pad2 = body.newObject("PartDesign::Pad", "Pad001")
pad2.Profile = sketch2
pad2.Length = 9

doc.recompute()
